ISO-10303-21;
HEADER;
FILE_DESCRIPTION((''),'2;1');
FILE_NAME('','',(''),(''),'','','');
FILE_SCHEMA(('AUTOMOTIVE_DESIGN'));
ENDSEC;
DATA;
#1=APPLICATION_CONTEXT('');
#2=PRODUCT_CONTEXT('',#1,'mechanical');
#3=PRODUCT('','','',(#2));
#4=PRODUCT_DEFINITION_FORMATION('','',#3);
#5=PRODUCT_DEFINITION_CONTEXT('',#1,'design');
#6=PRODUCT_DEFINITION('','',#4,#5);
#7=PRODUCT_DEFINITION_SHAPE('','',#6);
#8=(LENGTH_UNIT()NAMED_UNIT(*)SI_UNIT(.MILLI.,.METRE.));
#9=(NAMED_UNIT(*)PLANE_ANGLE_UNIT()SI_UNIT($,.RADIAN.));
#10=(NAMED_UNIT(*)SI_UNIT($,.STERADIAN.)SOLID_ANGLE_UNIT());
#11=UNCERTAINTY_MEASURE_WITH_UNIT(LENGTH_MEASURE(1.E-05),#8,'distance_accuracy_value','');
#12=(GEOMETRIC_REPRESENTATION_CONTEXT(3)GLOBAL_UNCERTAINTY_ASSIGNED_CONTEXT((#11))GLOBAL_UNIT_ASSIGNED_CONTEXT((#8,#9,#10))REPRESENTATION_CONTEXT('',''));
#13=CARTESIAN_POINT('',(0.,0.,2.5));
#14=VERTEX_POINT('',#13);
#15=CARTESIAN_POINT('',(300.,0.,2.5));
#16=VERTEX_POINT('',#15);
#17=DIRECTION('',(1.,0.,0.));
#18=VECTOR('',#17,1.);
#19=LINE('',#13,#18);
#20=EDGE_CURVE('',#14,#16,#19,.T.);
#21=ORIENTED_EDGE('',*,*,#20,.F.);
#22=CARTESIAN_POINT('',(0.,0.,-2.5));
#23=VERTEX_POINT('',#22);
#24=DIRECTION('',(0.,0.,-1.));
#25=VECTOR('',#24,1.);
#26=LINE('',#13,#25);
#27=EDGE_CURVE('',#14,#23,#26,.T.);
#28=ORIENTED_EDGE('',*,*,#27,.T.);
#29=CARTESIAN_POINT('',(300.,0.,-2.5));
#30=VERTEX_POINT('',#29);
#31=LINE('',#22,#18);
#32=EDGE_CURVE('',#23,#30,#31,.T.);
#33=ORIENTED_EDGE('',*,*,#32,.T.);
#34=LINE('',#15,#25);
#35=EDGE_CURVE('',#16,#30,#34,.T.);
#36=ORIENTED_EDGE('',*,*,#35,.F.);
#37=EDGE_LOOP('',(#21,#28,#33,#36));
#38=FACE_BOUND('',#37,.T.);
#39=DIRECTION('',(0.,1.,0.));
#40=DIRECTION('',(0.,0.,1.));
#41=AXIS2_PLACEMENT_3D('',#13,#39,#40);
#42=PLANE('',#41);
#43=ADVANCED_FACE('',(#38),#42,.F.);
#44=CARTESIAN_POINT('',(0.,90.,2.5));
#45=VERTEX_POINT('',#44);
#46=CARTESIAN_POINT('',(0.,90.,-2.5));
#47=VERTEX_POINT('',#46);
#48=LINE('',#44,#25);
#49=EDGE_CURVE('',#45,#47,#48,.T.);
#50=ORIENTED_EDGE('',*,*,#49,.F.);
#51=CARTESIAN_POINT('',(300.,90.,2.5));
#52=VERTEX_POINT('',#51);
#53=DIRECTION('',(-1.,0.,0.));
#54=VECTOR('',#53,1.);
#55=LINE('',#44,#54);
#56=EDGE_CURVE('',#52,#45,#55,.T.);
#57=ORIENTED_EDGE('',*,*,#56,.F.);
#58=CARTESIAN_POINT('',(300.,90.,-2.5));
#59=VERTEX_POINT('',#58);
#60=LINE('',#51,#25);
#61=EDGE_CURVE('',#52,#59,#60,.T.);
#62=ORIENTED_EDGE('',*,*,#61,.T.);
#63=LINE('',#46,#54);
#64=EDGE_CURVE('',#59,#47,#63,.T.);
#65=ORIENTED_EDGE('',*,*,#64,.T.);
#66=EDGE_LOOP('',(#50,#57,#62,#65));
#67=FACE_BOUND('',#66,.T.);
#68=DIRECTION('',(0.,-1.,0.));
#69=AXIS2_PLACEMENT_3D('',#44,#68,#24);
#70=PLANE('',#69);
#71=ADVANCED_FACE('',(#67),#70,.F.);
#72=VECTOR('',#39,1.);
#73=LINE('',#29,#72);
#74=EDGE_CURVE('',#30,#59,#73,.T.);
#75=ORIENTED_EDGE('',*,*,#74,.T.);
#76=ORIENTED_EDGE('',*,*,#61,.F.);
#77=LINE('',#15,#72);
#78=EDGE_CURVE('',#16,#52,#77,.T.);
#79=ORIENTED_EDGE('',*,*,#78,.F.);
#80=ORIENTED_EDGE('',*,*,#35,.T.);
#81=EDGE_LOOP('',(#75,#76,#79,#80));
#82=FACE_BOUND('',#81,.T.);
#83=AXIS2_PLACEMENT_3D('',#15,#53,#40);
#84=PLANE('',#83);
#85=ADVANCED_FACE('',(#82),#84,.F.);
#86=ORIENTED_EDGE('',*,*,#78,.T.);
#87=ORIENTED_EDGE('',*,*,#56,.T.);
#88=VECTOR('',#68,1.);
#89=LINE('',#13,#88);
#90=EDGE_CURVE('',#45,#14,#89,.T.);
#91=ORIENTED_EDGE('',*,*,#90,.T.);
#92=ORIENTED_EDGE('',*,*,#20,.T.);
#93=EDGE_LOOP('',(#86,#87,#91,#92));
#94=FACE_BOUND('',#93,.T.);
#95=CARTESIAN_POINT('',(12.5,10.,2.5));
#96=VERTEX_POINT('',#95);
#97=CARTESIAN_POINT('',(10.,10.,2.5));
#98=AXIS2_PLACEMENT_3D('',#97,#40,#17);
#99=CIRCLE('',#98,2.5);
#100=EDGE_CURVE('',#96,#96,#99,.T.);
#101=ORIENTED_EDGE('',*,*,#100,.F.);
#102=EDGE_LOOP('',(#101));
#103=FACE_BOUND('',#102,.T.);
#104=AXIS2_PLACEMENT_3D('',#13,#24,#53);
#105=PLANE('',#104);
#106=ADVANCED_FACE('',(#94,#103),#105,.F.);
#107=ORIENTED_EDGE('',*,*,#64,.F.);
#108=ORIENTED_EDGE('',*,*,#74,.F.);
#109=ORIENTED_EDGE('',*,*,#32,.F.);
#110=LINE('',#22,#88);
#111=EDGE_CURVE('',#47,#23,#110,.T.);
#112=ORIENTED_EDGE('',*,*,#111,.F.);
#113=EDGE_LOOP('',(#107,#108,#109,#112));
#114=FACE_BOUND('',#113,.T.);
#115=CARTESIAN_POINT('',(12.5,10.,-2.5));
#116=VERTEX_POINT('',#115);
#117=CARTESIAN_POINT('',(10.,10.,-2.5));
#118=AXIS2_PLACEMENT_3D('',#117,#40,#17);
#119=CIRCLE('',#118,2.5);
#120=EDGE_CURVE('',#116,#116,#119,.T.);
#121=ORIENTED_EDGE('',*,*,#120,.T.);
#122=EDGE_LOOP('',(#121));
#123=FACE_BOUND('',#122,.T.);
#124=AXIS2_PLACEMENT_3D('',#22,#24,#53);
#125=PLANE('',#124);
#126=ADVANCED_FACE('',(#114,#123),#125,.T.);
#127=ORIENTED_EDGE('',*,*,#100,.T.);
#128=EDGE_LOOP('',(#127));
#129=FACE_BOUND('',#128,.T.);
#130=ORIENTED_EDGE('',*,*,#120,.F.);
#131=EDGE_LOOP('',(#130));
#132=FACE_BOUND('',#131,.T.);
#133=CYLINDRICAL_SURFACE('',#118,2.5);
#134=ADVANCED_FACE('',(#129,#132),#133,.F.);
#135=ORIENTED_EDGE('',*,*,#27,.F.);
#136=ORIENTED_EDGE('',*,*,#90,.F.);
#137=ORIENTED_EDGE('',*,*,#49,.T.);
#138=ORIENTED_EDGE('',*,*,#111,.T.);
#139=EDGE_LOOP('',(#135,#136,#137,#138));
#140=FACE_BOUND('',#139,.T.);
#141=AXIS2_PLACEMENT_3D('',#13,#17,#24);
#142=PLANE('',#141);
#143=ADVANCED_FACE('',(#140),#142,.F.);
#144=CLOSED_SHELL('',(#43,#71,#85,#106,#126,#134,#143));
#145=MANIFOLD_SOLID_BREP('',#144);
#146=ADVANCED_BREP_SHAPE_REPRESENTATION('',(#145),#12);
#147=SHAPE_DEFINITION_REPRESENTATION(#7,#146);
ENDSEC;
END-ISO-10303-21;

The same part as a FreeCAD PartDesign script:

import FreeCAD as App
import Part
import Sketcher

V = App.Vector
Q = App.Units.Quantity

doc = App.newDocument("Part")
params = doc.addObject("Spreadsheet::Sheet", "Params")
for row, (alias, value) in enumerate([
    ("sketch1_width", "300 mm"),
    ("sketch1_height", "90 mm"),
    ("pad1_length", "5 mm"),
    ("sketch2_diameter", "5 mm"),
], start=1):
    params.set(f"A{row}", alias)
    params.set(f"B{row}", "=" + value)
    params.setAlias(f"B{row}", alias)

body = doc.addObject("PartDesign::Body", "Body")

sketch1 = body.newObject("Sketcher::SketchObject", "Sketch")
sketch1.AttachmentSupport = (doc.getObject("XY_Plane"), [""])
sketch1.MapMode = "FlatFace"
sketch1.addGeometry(Part.LineSegment(V(0, 90, 0), V(0, 0, 0)), False)
sketch1.addGeometry(Part.LineSegment(V(0, 0, 0), V(300, 0, 0)), False)
sketch1.addGeometry(Part.LineSegment(V(300, 0, 0), V(300, 90, 0)), False)
sketch1.addGeometry(Part.LineSegment(V(300, 90, 0), V(0, 90, 0)), False)
sketch1.addConstraint(Sketcher.Constraint("Coincident", 0, 2, 1, 1))
sketch1.addConstraint(Sketcher.Constraint("Coincident", 1, 2, 2, 1))
sketch1.addConstraint(Sketcher.Constraint("Coincident", 2, 2, 3, 1))
sketch1.addConstraint(Sketcher.Constraint("Coincident", 3, 2, 0, 1))
sketch1.addConstraint(Sketcher.Constraint("Vertical", 0))
sketch1.addConstraint(Sketcher.Constraint("Horizontal", 1))
sketch1.addConstraint(Sketcher.Constraint("Vertical", 2))
sketch1.addConstraint(Sketcher.Constraint("Horizontal", 3))
sketch1.addConstraint(Sketcher.Constraint("Coincident", 0, 2, -1, 1))
sketch1.addConstraint(Sketcher.Constraint("DistanceX", 1, 1, 1, 2, Q("300 mm")))
sketch1.addConstraint(Sketcher.Constraint("DistanceY", 0, 2, 0, 1, Q("90 mm")))
sketch1.setExpression("Constraints[9]", "Params.sketch1_width")
sketch1.setExpression("Constraints[10]", "Params.sketch1_height")
pad1 = body.newObject("PartDesign::Pad", "Pad")
pad1.Profile = sketch1
pad1.setExpression("Length", "Params.pad1_length")
pad1.Midplane = True

sketch2 = body.newObject("Sketcher::SketchObject", "Sketch001")
sketch2.AttachmentSupport = (doc.getObject("XY_Plane"), [""])
sketch2.MapMode = "FlatFace"
sketch2.AttachmentOffset = App.Placement(V(0, 0, 2.5), App.Rotation())
sketch2.addGeometry(Part.Circle(V(10, 10, 0), V(0, 0, 1), 2.5), False)
sketch2.addConstraint(Sketcher.Constraint("Diameter", 0, Q("5 mm")))
sketch2.addConstraint(Sketcher.Constraint("DistanceX", -1, 1, 0, 3, Q("10 mm")))
sketch2.addConstraint(Sketcher.Constraint("DistanceY", -1, 1, 0, 3, Q("10 mm")))
sketch2.setExpression("Constraints[0]", "Params.sketch2_diameter")
pocket1 = body.newObject("PartDesign::Pocket", "Pocket")
pocket1.Profile = sketch2
pocket1.Type = "ThroughAll"

doc.recompute()
